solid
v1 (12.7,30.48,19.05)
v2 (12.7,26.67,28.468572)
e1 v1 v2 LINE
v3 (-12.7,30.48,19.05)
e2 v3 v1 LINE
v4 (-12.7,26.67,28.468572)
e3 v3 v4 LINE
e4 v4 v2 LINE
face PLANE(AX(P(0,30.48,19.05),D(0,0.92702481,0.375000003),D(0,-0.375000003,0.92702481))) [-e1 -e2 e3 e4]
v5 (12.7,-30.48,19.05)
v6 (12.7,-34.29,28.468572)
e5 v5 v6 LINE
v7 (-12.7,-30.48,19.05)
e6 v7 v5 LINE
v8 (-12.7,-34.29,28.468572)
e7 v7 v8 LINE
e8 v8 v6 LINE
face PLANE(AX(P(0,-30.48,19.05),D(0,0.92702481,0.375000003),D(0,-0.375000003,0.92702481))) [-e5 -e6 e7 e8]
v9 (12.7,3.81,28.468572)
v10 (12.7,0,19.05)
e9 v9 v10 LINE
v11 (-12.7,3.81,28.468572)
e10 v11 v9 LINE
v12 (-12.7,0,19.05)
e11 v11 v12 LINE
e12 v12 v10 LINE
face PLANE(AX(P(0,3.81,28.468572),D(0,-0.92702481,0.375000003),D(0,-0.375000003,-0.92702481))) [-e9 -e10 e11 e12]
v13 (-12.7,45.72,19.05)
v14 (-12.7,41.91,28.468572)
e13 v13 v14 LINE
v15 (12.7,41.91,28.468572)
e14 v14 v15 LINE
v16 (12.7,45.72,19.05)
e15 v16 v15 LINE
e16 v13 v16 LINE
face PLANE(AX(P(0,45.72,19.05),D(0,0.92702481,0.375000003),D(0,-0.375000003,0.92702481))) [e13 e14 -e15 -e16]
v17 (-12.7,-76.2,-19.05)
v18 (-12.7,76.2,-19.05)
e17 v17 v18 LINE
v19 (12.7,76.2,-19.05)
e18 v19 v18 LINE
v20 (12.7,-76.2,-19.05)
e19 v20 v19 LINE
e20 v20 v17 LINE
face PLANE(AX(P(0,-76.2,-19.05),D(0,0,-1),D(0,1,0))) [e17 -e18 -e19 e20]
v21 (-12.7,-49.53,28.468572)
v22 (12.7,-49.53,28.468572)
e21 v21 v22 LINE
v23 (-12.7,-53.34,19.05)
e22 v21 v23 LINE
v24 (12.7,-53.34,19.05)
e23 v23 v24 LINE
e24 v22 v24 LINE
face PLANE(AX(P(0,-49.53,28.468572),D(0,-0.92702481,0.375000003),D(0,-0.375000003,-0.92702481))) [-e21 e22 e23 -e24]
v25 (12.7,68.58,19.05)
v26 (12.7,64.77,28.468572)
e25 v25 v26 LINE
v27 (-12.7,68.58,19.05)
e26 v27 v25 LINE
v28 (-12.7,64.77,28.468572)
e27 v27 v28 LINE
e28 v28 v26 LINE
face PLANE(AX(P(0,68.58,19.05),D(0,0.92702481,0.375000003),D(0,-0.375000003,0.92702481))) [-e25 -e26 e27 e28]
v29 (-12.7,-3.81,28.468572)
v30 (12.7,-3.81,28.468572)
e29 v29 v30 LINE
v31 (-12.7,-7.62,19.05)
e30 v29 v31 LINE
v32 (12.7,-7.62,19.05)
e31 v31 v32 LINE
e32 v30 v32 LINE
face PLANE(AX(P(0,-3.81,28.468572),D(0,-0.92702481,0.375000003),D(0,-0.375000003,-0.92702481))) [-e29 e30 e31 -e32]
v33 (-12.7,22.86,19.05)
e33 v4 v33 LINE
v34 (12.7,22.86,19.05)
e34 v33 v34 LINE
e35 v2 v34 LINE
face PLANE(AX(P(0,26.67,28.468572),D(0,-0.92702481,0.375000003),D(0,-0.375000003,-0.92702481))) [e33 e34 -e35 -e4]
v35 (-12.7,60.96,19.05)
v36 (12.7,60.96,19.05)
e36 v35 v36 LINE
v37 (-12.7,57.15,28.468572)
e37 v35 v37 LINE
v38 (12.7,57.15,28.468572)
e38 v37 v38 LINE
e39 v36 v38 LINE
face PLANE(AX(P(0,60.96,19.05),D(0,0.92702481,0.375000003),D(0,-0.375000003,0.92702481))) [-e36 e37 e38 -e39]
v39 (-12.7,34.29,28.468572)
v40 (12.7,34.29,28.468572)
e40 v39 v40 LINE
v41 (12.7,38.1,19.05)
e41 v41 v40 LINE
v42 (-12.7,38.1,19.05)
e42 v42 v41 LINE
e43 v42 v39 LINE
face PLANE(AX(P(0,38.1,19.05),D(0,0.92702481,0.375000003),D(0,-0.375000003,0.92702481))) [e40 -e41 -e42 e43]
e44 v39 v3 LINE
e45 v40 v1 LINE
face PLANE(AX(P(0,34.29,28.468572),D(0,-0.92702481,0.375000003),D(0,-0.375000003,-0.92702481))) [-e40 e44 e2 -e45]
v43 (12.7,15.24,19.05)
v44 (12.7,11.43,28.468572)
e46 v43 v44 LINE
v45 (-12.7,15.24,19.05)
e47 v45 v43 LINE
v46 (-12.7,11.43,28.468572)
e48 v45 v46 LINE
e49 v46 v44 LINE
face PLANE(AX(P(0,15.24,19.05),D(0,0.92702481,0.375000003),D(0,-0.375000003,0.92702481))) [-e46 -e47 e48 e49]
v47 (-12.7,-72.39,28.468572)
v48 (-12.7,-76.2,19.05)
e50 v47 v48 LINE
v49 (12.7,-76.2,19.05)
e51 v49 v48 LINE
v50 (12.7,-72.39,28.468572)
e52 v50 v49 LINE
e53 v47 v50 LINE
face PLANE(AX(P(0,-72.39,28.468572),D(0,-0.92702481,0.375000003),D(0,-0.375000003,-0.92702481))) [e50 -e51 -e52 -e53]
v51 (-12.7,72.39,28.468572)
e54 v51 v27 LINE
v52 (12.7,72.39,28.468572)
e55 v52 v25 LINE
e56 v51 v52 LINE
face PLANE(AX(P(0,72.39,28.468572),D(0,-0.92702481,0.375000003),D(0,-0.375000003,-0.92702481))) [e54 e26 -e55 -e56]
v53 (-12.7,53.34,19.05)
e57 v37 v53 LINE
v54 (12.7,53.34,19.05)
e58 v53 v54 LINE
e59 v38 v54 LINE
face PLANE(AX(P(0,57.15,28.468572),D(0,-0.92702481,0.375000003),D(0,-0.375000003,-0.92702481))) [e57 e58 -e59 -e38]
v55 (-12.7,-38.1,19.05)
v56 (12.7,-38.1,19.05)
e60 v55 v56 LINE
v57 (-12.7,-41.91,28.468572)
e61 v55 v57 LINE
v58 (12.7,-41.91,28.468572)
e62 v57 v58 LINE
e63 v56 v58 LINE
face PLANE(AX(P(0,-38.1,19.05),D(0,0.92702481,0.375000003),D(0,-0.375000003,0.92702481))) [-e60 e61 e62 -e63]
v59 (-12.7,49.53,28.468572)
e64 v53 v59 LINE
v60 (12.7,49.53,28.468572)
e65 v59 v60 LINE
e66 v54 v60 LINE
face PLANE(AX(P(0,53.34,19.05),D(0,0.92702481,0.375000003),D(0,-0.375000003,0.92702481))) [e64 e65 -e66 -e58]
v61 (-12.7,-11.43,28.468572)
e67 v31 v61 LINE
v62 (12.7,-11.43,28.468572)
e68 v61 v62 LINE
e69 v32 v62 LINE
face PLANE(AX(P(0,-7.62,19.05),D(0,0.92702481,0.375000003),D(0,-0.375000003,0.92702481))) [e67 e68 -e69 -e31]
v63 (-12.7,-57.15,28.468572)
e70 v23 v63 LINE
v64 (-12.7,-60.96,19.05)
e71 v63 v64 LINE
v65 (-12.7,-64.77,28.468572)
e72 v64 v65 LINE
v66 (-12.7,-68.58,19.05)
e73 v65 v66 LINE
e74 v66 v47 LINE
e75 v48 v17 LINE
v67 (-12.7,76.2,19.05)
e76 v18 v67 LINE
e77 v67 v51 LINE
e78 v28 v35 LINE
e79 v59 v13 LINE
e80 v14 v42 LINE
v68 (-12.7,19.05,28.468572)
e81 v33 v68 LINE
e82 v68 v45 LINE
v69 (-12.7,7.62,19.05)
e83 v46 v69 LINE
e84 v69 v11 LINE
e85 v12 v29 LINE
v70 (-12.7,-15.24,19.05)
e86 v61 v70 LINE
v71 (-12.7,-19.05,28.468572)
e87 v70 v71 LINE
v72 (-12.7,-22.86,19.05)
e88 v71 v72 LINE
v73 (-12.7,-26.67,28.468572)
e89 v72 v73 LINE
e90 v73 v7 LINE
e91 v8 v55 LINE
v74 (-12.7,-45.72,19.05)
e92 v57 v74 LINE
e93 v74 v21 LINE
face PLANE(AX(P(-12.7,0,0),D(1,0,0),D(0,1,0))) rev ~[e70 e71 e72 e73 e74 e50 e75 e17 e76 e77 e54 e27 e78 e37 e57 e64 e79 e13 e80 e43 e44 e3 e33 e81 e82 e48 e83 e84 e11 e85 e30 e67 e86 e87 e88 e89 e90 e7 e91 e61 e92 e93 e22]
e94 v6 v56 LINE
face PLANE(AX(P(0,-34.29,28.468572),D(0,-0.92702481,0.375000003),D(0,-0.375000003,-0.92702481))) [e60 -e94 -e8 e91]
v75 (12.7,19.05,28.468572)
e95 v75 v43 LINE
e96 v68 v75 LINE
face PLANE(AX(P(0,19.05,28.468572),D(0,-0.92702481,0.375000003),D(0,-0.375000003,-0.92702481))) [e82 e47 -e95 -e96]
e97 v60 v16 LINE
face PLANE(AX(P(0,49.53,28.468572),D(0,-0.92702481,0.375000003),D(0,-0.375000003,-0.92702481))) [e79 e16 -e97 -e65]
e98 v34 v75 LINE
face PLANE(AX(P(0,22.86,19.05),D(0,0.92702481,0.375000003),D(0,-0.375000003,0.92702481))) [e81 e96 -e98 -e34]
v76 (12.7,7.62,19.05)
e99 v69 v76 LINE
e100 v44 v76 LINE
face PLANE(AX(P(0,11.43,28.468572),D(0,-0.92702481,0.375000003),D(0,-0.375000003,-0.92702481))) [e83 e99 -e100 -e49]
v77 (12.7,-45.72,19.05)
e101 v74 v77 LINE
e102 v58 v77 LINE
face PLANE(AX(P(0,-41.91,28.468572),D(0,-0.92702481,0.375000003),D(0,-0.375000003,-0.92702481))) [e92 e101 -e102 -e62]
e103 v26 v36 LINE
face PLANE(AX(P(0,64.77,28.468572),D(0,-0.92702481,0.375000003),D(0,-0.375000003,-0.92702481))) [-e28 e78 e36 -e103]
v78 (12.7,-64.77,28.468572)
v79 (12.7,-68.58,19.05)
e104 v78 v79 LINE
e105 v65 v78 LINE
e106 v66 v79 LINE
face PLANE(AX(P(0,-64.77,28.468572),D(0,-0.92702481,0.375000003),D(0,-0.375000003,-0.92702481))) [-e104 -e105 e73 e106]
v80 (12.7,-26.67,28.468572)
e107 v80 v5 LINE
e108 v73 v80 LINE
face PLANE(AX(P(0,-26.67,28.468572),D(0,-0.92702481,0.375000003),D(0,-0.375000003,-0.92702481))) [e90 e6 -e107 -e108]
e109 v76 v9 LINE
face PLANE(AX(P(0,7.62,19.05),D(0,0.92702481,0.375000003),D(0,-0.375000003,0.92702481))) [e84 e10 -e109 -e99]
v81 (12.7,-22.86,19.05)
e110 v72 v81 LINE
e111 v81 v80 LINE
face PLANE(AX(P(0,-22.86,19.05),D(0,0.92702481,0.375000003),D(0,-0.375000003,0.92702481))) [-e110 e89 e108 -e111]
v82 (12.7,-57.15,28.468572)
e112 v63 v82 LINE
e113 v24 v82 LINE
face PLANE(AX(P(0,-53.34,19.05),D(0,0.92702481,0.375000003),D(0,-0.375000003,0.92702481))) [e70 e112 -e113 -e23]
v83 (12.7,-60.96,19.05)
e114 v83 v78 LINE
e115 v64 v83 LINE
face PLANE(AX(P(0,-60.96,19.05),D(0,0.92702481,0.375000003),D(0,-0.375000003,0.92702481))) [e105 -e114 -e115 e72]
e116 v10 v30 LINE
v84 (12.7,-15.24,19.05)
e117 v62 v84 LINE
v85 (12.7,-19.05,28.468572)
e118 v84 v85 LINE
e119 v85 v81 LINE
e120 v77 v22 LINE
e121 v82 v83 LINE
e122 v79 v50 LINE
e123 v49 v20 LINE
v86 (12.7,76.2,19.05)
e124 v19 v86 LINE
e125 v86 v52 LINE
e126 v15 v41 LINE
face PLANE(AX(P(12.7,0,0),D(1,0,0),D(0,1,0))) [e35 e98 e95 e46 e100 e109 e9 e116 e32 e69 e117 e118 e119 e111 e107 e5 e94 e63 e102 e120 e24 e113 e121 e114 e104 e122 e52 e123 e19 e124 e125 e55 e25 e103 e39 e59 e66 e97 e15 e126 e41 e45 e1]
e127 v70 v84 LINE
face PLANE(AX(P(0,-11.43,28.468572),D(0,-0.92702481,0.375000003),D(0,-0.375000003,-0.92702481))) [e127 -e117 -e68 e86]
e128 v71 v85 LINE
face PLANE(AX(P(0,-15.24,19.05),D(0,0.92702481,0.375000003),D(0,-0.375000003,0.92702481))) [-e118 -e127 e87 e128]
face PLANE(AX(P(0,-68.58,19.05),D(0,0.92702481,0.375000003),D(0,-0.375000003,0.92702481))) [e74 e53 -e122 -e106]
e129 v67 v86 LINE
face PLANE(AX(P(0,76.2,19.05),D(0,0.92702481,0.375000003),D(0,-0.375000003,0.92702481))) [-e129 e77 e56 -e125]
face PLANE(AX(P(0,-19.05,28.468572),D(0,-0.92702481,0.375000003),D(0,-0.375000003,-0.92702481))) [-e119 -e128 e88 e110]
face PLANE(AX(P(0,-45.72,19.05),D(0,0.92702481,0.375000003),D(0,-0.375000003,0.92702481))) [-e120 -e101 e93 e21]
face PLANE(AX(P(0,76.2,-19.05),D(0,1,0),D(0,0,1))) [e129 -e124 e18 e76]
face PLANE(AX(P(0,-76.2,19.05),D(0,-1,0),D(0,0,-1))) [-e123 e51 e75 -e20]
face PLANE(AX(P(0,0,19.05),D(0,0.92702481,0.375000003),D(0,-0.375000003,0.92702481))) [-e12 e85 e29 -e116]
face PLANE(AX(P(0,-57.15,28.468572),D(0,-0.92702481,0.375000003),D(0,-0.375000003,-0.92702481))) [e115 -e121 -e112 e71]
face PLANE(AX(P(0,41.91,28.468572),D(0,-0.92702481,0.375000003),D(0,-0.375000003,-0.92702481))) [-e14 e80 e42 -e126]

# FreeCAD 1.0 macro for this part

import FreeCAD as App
import Part
import Sketcher
from FreeCAD import Vector
Q = App.Units.Quantity

doc = App.newDocument("Part")
params = doc.addObject("Spreadsheet::Sheet", "Params")
for row, (alias, value) in enumerate([
    ("sketch1_width", "6 in"),
    ("sketch1_height", "1.5 in"),
    ("sketch1_length", "0.4 in"),
    ("pad1_length", "1 in"),
], start=1):
    params.set(f"A{row}", alias)
    params.set(f"B{row}", "=" + value)
    params.setAlias(f"B{row}", alias)

body = doc.addObject("PartDesign::Body", "Body")

# Sketch on YZ plane
sketch1 = body.newObject("Sketcher::SketchObject", "Sketch")
sketch1.AttachmentSupport = (doc.getObject("YZ_Plane"), [""])
sketch1.MapMode = "FlatFace"
sketch1.addGeometry([
    Part.LineSegment(Vector(76.2, -19.05, 0), Vector(76.2, 19.05, 0)),  # 0
    Part.LineSegment(Vector(76.2, 19.05, 0), Vector(72.39, 28.468572, 0)),  # 1
    Part.LineSegment(Vector(72.39, 28.468572, 0), Vector(68.58, 19.05, 0)),  # 2
    Part.LineSegment(Vector(68.58, 19.05, 0), Vector(64.77, 28.468572, 0)),  # 3
    Part.LineSegment(Vector(64.77, 28.468572, 0), Vector(60.96, 19.05, 0)),  # 4
    Part.LineSegment(Vector(60.96, 19.05, 0), Vector(57.15, 28.468572, 0)),  # 5
    Part.LineSegment(Vector(57.15, 28.468572, 0), Vector(53.34, 19.05, 0)),  # 6
    Part.LineSegment(Vector(53.34, 19.05, 0), Vector(49.53, 28.468572, 0)),  # 7
    Part.LineSegment(Vector(49.53, 28.468572, 0), Vector(45.72, 19.05, 0)),  # 8
    Part.LineSegment(Vector(45.72, 19.05, 0), Vector(41.91, 28.468572, 0)),  # 9
    Part.LineSegment(Vector(41.91, 28.468572, 0), Vector(38.1, 19.05, 0)),  # 10
    Part.LineSegment(Vector(38.1, 19.05, 0), Vector(34.29, 28.468572, 0)),  # 11
    Part.LineSegment(Vector(34.29, 28.468572, 0), Vector(30.48, 19.05, 0)),  # 12
    Part.LineSegment(Vector(30.48, 19.05, 0), Vector(26.67, 28.468572, 0)),  # 13
    Part.LineSegment(Vector(26.67, 28.468572, 0), Vector(22.86, 19.05, 0)),  # 14
    Part.LineSegment(Vector(22.86, 19.05, 0), Vector(19.05, 28.468572, 0)),  # 15
    Part.LineSegment(Vector(19.05, 28.468572, 0), Vector(15.24, 19.05, 0)),  # 16
    Part.LineSegment(Vector(15.24, 19.05, 0), Vector(11.43, 28.468572, 0)),  # 17
    Part.LineSegment(Vector(11.43, 28.468572, 0), Vector(7.62, 19.05, 0)),  # 18
    Part.LineSegment(Vector(7.62, 19.05, 0), Vector(3.81, 28.468572, 0)),  # 19
    Part.LineSegment(Vector(3.81, 28.468572, 0), Vector(0, 19.05, 0)),  # 20
    Part.LineSegment(Vector(0, 19.05, 0), Vector(-3.81, 28.468572, 0)),  # 21
    Part.LineSegment(Vector(-3.81, 28.468572, 0), Vector(-7.62, 19.05, 0)),  # 22
    Part.LineSegment(Vector(-7.62, 19.05, 0), Vector(-11.43, 28.468572, 0)),  # 23
    Part.LineSegment(Vector(-11.43, 28.468572, 0), Vector(-15.24, 19.05, 0)),  # 24
    Part.LineSegment(Vector(-15.24, 19.05, 0), Vector(-19.05, 28.468572, 0)),  # 25
    Part.LineSegment(Vector(-19.05, 28.468572, 0), Vector(-22.86, 19.05, 0)),  # 26
    Part.LineSegment(Vector(-22.86, 19.05, 0), Vector(-26.67, 28.468572, 0)),  # 27
    Part.LineSegment(Vector(-26.67, 28.468572, 0), Vector(-30.48, 19.05, 0)),  # 28
    Part.LineSegment(Vector(-30.48, 19.05, 0), Vector(-34.29, 28.468572, 0)),  # 29
    Part.LineSegment(Vector(-34.29, 28.468572, 0), Vector(-38.1, 19.05, 0)),  # 30
    Part.LineSegment(Vector(-38.1, 19.05, 0), Vector(-41.91, 28.468572, 0)),  # 31
    Part.LineSegment(Vector(-41.91, 28.468572, 0), Vector(-45.72, 19.05, 0)),  # 32
    Part.LineSegment(Vector(-45.72, 19.05, 0), Vector(-49.53, 28.468572, 0)),  # 33
    Part.LineSegment(Vector(-49.53, 28.468572, 0), Vector(-53.34, 19.05, 0)),  # 34
    Part.LineSegment(Vector(-53.34, 19.05, 0), Vector(-57.15, 28.468572, 0)),  # 35
    Part.LineSegment(Vector(-57.15, 28.468572, 0), Vector(-60.96, 19.05, 0)),  # 36
    Part.LineSegment(Vector(-60.96, 19.05, 0), Vector(-64.77, 28.468572, 0)),  # 37
    Part.LineSegment(Vector(-64.77, 28.468572, 0), Vector(-68.58, 19.05, 0)),  # 38
    Part.LineSegment(Vector(-68.58, 19.05, 0), Vector(-72.39, 28.468572, 0)),  # 39
    Part.LineSegment(Vector(-72.39, 28.468572, 0), Vector(-76.2, 19.05, 0)),  # 40
    Part.LineSegment(Vector(-76.2, 19.05, 0), Vector(-76.2, -19.05, 0)),  # 41
    Part.LineSegment(Vector(-76.2, -19.05, 0), Vector(76.2, -19.05, 0)),  # 42
], False)
sketch1.addConstraint([
    Sketcher.Constraint("Coincident", 0, 2, 1, 1),
    Sketcher.Constraint("Coincident", 1, 2, 2, 1),
    Sketcher.Constraint("Coincident", 2, 2, 3, 1),
    Sketcher.Constraint("Coincident", 3, 2, 4, 1),
    Sketcher.Constraint("Coincident", 4, 2, 5, 1),
    Sketcher.Constraint("Coincident", 5, 2, 6, 1),
    Sketcher.Constraint("Coincident", 6, 2, 7, 1),
    Sketcher.Constraint("Coincident", 7, 2, 8, 1),
    Sketcher.Constraint("Coincident", 8, 2, 9, 1),
    Sketcher.Constraint("Coincident", 9, 2, 10, 1),
    Sketcher.Constraint("Coincident", 10, 2, 11, 1),
    Sketcher.Constraint("Coincident", 11, 2, 12, 1),
    Sketcher.Constraint("Coincident", 12, 2, 13, 1),
    Sketcher.Constraint("Coincident", 13, 2, 14, 1),
    Sketcher.Constraint("Coincident", 14, 2, 15, 1),
    Sketcher.Constraint("Coincident", 15, 2, 16, 1),
    Sketcher.Constraint("Coincident", 16, 2, 17, 1),
    Sketcher.Constraint("Coincident", 17, 2, 18, 1),
    Sketcher.Constraint("Coincident", 18, 2, 19, 1),
    Sketcher.Constraint("Coincident", 19, 2, 20, 1),
    Sketcher.Constraint("Coincident", 20, 2, 21, 1),
    Sketcher.Constraint("Coincident", 21, 2, 22, 1),
    Sketcher.Constraint("Coincident", 22, 2, 23, 1),
    Sketcher.Constraint("Coincident", 23, 2, 24, 1),
    Sketcher.Constraint("Coincident", 24, 2, 25, 1),
    Sketcher.Constraint("Coincident", 25, 2, 26, 1),
    Sketcher.Constraint("Coincident", 26, 2, 27, 1),
    Sketcher.Constraint("Coincident", 27, 2, 28, 1),
    Sketcher.Constraint("Coincident", 28, 2, 29, 1),
    Sketcher.Constraint("Coincident", 29, 2, 30, 1),
    Sketcher.Constraint("Coincident", 30, 2, 31, 1),
    Sketcher.Constraint("Coincident", 31, 2, 32, 1),
    Sketcher.Constraint("Coincident", 32, 2, 33, 1),
    Sketcher.Constraint("Coincident", 33, 2, 34, 1),
    Sketcher.Constraint("Coincident", 34, 2, 35, 1),
    Sketcher.Constraint("Coincident", 35, 2, 36, 1),
    Sketcher.Constraint("Coincident", 36, 2, 37, 1),
    Sketcher.Constraint("Coincident", 37, 2, 38, 1),
    Sketcher.Constraint("Coincident", 38, 2, 39, 1),
    Sketcher.Constraint("Coincident", 39, 2, 40, 1),
    Sketcher.Constraint("Coincident", 40, 2, 41, 1),
    Sketcher.Constraint("Coincident", 41, 2, 42, 1),
    Sketcher.Constraint("Coincident", 42, 2, 0, 1),
    Sketcher.Constraint("Vertical", 0),
    Sketcher.Constraint("Vertical", 41),
    Sketcher.Constraint("Horizontal", 42),
    Sketcher.Constraint("Symmetric", 0, 2, 41, 2, -1, 1),
    Sketcher.Constraint("Symmetric", 19, 2, 21, 2, -2),
    Sketcher.Constraint("Symmetric", 18, 2, 22, 2, -2),
    Sketcher.Constraint("Symmetric", 17, 2, 23, 2, -2),
    Sketcher.Constraint("Symmetric", 16, 2, 24, 2, -2),
    Sketcher.Constraint("Symmetric", 15, 2, 25, 2, -2),
    Sketcher.Constraint("Symmetric", 14, 2, 26, 2, -2),
    Sketcher.Constraint("Symmetric", 13, 2, 27, 2, -2),
    Sketcher.Constraint("Symmetric", 12, 2, 28, 2, -2),
    Sketcher.Constraint("Symmetric", 11, 2, 29, 2, -2),
    Sketcher.Constraint("Symmetric", 10, 2, 30, 2, -2),
    Sketcher.Constraint("Symmetric", 9, 2, 31, 2, -2),
    Sketcher.Constraint("Symmetric", 8, 2, 32, 2, -2),
    Sketcher.Constraint("Symmetric", 7, 2, 33, 2, -2),
    Sketcher.Constraint("Symmetric", 6, 2, 34, 2, -2),
    Sketcher.Constraint("Symmetric", 5, 2, 35, 2, -2),
    Sketcher.Constraint("Symmetric", 4, 2, 36, 2, -2),
    Sketcher.Constraint("Symmetric", 3, 2, 37, 2, -2),
    Sketcher.Constraint("Symmetric", 2, 2, 38, 2, -2),
    Sketcher.Constraint("Symmetric", 1, 2, 39, 2, -2),
    Sketcher.Constraint("PointOnObject", 20, 2, -2),
    Sketcher.Constraint("Parallel", 1, 3),
    Sketcher.Constraint("Parallel", 2, 4),
    Sketcher.Constraint("Parallel", 3, 5),
    Sketcher.Constraint("Parallel", 4, 6),
    Sketcher.Constraint("Parallel", 5, 7),
    Sketcher.Constraint("Parallel", 6, 8),
    Sketcher.Constraint("Parallel", 7, 9),
    Sketcher.Constraint("Parallel", 8, 10),
    Sketcher.Constraint("Parallel", 9, 11),
    Sketcher.Constraint("Parallel", 10, 12),
    Sketcher.Constraint("Parallel", 11, 13),
    Sketcher.Constraint("Parallel", 12, 14),
    Sketcher.Constraint("Parallel", 13, 15),
    Sketcher.Constraint("Parallel", 14, 16),
    Sketcher.Constraint("Parallel", 15, 17),
    Sketcher.Constraint("Parallel", 16, 18),
    Sketcher.Constraint("Parallel", 17, 19),
    Sketcher.Constraint("Parallel", 18, 20),
    Sketcher.Constraint("Parallel", 19, 21),
    Sketcher.Constraint("Parallel", 38, 40),
    Sketcher.Constraint("Horizontal", 0, 2, 2, 2),
    Sketcher.Constraint("Horizontal", 1, 2, 3, 2),
    Sketcher.Constraint("Horizontal", 2, 2, 4, 2),
    Sketcher.Constraint("Horizontal", 3, 2, 5, 2),
    Sketcher.Constraint("Horizontal", 4, 2, 6, 2),
    Sketcher.Constraint("Horizontal", 5, 2, 7, 2),
    Sketcher.Constraint("Horizontal", 6, 2, 8, 2),
    Sketcher.Constraint("Horizontal", 7, 2, 9, 2),
    Sketcher.Constraint("Horizontal", 8, 2, 10, 2),
    Sketcher.Constraint("Horizontal", 9, 2, 11, 2),
    Sketcher.Constraint("Horizontal", 10, 2, 12, 2),
    Sketcher.Constraint("Horizontal", 11, 2, 13, 2),
    Sketcher.Constraint("Horizontal", 12, 2, 14, 2),
    Sketcher.Constraint("Horizontal", 13, 2, 15, 2),
    Sketcher.Constraint("Horizontal", 14, 2, 16, 2),
    Sketcher.Constraint("Horizontal", 15, 2, 17, 2),
    Sketcher.Constraint("Horizontal", 16, 2, 18, 2),
    Sketcher.Constraint("Horizontal", 17, 2, 19, 2),
    Sketcher.Constraint("Horizontal", 18, 2, 20, 2),
    Sketcher.Constraint("DistanceX", 42, 1, 42, 2, Q("6 in")),
    Sketcher.Constraint("DistanceY", 0, 1, 0, 2, Q("1.5 in")),
    Sketcher.Constraint("Distance", 1, Q("0.4 in")),
])
sketch1.setExpression("Constraints[106]", "Params.sketch1_width")
sketch1.setExpression("Constraints[107]", "Params.sketch1_height")
sketch1.setExpression("Constraints[108]", "Params.sketch1_length")
pad1 = body.newObject("PartDesign::Pad", "Pad")
pad1.Profile = sketch1
pad1.setExpression("Length", "Params.pad1_length")
pad1.Midplane = True

doc.recompute()
